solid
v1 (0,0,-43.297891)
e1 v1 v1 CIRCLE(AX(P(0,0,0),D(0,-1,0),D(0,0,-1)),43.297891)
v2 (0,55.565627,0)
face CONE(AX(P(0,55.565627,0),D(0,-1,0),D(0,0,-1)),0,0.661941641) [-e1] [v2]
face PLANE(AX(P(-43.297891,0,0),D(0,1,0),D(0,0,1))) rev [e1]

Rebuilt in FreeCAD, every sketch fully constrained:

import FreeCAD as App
import Part
import Sketcher
from FreeCAD import Vector
Q = App.Units.Quantity

doc = App.newDocument("Part")
body = doc.addObject("PartDesign::Body", "Body")

# Sketch on XY plane
sketch1 = body.newObject("Sketcher::SketchObject", "Sketch")
sketch1.AttachmentSupport = (doc.getObject("XY_Plane"), [""])
sketch1.MapMode = "FlatFace"
sketch1.addGeometry(Part.LineSegment(Vector(0, 0, 0), Vector(0, 55.565627, 0)), False)
sketch1.addGeometry(Part.LineSegment(Vector(0, 55.565627, 0), Vector(-43.297891, 0, 0)), False)
sketch1.addGeometry(Part.LineSegment(Vector(-43.297891, 0, 0), Vector(0, 0, 0)), False)
sketch1.addConstraint(Sketcher.Constraint("Coincident", 0, 2, 1, 1))
sketch1.addConstraint(Sketcher.Constraint("Coincident", 1, 2, 2, 1))
sketch1.addConstraint(Sketcher.Constraint("Coincident", 2, 2, 0, 1))
sketch1.addConstraint(Sketcher.Constraint("Vertical", 0))
sketch1.addConstraint(Sketcher.Constraint("Horizontal", 2))
sketch1.addConstraint(Sketcher.Constraint("Coincident", 2, 2, -1, 1))
sketch1.addConstraint(Sketcher.Constraint("DistanceX", 2, 1, 2, 2, Q("43.297891 mm")))
sketch1.addConstraint(Sketcher.Constraint("DistanceY", 0, 1, 0, 2, Q("55.565627 mm")))
revolution = body.newObject("PartDesign::Revolution", "Revolution")
revolution.Profile = sketch1
revolution.ReferenceAxis = (sketch1, ["V_Axis"])
revolution.Angle = 360

doc.recompute()
